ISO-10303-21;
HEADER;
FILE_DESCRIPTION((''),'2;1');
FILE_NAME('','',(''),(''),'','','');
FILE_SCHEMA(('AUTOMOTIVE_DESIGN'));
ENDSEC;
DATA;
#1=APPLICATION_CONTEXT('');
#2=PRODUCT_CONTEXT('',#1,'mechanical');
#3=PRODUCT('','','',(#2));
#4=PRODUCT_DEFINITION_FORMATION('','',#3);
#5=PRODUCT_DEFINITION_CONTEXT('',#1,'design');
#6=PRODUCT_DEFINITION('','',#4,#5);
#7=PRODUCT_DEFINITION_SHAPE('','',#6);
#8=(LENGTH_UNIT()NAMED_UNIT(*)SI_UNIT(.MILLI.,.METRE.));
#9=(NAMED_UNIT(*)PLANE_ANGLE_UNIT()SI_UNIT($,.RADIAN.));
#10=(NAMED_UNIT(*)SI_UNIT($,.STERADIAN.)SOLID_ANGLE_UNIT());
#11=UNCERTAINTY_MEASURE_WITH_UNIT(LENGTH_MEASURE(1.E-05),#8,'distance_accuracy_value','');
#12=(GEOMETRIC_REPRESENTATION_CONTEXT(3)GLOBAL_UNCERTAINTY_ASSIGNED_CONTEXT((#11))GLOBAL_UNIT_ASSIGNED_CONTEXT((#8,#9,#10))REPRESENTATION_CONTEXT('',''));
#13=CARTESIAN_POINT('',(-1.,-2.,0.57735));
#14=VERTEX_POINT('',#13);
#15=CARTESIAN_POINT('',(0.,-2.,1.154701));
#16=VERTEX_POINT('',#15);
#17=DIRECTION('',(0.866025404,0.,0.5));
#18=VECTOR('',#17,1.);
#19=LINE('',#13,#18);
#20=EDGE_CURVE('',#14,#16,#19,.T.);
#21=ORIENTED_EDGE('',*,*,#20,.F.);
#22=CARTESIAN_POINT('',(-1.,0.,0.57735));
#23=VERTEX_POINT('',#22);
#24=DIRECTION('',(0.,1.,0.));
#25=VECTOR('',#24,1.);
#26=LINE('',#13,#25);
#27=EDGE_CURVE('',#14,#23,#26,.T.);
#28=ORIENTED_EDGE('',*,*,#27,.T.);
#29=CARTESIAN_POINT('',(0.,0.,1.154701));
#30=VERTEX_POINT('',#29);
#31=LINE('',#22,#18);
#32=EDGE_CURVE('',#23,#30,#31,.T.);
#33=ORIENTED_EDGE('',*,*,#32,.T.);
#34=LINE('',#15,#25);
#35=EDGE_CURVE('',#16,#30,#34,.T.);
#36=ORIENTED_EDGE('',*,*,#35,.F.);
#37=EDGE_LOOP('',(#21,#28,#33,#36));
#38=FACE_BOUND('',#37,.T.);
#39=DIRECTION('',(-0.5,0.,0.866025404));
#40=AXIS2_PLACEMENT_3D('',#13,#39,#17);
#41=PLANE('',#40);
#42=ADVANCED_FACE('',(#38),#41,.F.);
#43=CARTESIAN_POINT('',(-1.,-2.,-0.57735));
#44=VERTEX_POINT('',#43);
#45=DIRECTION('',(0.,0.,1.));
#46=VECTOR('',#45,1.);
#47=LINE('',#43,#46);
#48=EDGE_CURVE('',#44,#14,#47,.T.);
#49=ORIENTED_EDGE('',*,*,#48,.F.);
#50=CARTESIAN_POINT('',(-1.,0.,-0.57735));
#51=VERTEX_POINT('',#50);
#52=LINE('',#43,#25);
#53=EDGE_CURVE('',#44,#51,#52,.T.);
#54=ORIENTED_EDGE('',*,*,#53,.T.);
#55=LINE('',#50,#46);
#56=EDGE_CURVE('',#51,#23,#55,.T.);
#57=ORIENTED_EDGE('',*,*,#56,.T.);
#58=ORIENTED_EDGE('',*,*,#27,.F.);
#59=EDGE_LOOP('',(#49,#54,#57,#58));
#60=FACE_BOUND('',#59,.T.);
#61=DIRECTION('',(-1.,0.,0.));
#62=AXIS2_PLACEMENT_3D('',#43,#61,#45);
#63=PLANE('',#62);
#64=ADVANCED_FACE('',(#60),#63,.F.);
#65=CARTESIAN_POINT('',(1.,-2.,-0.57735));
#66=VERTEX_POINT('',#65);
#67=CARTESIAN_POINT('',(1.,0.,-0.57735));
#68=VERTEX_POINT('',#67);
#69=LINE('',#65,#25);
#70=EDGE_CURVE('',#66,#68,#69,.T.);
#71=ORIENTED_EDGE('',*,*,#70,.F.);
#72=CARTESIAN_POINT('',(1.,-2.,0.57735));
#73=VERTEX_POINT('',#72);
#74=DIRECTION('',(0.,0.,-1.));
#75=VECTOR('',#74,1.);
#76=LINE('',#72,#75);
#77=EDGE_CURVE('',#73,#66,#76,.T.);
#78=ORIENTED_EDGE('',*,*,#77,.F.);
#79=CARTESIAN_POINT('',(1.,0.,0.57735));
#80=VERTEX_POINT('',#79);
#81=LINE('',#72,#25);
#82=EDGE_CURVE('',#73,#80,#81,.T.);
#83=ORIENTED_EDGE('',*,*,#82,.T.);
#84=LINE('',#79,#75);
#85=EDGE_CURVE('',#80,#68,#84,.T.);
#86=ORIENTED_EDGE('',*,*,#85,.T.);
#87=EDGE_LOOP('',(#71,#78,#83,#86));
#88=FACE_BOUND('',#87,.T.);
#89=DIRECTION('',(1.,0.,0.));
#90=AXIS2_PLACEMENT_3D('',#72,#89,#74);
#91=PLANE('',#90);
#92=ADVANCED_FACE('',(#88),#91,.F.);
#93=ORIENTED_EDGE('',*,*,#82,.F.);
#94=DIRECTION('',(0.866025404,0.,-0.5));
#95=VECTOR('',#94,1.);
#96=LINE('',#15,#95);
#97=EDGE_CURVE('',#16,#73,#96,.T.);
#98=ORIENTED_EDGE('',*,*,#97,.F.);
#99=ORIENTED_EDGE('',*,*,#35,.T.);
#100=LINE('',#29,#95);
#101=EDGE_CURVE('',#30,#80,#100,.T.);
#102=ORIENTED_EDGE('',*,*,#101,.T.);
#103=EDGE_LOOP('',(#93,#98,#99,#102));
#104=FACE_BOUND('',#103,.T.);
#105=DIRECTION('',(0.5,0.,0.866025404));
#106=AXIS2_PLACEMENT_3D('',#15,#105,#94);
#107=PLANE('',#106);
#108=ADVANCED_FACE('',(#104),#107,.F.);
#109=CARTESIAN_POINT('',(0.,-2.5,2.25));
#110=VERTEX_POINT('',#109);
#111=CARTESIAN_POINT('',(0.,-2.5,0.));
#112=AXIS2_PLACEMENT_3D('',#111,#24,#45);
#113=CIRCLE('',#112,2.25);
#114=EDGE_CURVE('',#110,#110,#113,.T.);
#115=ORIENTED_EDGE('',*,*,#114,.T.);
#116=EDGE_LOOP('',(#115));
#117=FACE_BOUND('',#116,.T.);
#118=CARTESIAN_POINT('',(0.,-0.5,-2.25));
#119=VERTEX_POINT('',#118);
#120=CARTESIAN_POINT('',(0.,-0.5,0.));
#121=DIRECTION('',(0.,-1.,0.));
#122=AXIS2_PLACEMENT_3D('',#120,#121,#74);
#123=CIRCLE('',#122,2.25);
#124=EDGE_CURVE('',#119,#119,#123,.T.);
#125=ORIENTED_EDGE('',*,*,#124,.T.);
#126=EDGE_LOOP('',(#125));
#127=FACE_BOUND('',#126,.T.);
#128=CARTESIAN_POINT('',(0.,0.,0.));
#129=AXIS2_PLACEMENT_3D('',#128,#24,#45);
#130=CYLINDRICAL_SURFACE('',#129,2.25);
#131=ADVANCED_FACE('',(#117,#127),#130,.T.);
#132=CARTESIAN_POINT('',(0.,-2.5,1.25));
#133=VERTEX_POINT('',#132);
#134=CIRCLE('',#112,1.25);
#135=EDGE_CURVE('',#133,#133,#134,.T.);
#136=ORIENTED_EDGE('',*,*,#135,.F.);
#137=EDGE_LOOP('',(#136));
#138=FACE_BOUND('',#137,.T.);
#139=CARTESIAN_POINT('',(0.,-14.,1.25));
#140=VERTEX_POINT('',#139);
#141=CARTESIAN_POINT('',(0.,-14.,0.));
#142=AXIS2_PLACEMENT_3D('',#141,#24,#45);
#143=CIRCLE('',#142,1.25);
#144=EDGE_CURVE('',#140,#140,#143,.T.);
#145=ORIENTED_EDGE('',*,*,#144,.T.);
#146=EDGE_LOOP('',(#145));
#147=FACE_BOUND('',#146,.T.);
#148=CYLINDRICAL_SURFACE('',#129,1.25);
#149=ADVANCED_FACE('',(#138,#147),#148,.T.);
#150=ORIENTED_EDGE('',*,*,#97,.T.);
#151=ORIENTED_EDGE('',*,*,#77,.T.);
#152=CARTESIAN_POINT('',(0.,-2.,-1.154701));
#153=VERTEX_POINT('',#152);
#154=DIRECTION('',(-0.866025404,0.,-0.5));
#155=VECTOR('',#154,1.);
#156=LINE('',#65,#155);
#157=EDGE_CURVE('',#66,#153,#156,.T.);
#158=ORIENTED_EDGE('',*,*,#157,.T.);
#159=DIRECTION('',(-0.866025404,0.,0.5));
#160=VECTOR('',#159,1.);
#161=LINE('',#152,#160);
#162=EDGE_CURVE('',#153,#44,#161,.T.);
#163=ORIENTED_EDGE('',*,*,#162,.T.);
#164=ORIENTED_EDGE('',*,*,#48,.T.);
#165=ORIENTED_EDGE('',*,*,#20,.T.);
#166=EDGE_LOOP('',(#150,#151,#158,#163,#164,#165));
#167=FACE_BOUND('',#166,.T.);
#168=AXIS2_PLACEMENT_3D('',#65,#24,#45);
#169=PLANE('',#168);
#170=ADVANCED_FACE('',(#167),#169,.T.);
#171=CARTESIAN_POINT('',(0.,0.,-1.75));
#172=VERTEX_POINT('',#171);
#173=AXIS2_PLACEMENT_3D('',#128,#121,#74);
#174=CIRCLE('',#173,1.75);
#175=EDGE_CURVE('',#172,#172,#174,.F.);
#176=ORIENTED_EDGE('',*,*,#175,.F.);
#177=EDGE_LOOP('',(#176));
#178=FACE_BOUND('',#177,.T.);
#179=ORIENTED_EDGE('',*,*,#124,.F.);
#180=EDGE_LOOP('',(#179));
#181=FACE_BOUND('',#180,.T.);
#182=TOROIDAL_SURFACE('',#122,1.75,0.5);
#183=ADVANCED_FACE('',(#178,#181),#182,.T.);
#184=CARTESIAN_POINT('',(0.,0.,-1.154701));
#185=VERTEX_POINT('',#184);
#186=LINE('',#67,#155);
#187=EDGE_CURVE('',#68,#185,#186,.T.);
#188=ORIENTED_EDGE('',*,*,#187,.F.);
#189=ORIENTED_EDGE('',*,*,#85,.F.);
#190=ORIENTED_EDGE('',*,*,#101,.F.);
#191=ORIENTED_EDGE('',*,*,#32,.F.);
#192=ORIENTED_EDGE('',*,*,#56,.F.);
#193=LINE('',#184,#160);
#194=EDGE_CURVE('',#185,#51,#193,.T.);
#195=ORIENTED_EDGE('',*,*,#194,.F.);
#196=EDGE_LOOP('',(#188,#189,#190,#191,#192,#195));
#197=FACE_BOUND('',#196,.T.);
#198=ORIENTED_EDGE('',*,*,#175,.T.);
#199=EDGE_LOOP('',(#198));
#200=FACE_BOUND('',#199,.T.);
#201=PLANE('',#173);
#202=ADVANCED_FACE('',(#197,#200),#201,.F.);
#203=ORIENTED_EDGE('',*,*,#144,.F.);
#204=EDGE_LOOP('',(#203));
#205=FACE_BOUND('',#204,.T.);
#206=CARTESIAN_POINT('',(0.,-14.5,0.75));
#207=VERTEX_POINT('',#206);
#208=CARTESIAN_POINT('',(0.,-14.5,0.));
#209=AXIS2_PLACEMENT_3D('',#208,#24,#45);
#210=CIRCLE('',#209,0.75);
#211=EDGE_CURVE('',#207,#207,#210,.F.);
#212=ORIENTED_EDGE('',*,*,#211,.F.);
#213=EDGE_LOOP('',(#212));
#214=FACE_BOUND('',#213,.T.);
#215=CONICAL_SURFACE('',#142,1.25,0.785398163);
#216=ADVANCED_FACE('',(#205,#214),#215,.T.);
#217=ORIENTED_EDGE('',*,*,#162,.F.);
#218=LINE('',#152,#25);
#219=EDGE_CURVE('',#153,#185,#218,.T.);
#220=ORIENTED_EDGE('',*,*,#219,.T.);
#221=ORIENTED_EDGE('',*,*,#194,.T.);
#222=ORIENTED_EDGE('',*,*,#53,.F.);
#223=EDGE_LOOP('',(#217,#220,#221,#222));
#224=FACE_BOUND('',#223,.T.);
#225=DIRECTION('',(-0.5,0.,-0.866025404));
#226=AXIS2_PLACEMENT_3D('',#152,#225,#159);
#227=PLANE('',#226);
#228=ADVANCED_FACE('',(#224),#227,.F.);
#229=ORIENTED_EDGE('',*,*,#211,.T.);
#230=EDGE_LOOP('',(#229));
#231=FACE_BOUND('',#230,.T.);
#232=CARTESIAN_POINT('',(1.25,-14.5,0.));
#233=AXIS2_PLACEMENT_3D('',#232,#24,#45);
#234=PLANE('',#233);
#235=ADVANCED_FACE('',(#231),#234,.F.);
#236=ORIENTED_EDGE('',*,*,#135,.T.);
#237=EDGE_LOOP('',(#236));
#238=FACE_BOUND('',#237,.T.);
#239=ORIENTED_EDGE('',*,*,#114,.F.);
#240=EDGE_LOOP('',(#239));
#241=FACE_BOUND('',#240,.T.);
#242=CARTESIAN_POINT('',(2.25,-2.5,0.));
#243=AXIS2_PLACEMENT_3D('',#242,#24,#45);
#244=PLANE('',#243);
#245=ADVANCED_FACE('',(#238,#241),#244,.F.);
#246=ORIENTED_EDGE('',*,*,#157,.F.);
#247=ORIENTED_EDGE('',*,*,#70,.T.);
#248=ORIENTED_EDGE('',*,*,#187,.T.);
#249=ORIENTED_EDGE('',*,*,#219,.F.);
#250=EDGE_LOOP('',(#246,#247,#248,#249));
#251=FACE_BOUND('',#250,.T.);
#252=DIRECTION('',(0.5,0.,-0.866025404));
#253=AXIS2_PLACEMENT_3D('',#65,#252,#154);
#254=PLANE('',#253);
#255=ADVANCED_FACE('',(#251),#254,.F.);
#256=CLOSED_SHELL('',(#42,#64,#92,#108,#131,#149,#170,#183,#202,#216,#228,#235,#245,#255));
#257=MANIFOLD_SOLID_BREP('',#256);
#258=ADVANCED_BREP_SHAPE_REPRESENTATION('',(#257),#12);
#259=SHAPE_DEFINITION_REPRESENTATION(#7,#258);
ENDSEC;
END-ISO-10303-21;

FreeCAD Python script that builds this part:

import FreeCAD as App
import Part
import Sketcher
from FreeCAD import Vector
Q = App.Units.Quantity


def edges_at(feature, points):
    """Names of the edges that pass closest to the given points."""
    edges = feature.Shape.Edges
    near = lambda p: min(range(len(edges)), key=lambda i: edges[i].distToShape(Part.Vertex(*p))[0])
    return sorted({f"Edge{near(p) + 1}" for p in points})


def add_polygon(sketch, points):
    """Adds a closed chain of lines whose ends are joined by coincident constraints."""
    first, n = sketch.GeometryCount, len(points)
    for a, b in zip(points, points[1:] + points[:1]):
        sketch.addGeometry(Part.LineSegment(App.Vector(*a, 0), App.Vector(*b, 0)), False)
    for i in range(n):
        sketch.addConstraint(Sketcher.Constraint("Coincident", first + i, 2, first + (i + 1) % n, 1))

doc = App.newDocument("Part")
params = doc.addObject("Spreadsheet::Sheet", "Params")
for row, (alias, value) in enumerate([
    ("sketch1_width", "1 mm"),
    ("sketch1_height", "12 mm"),
    ("sketch1_height2", "14.5 mm"),
    ("sketch1_width2", "2.25 mm"),
    ("revolution_angle", "360 deg"),
    ("pocket1_length", "2 mm"),
    ("chamfer_size", "0.5 mm"),
    ("fillet_radius", "0.5 mm"),
], start=1):
    params.set(f"A{row}", alias)
    params.set(f"B{row}", "=" + value)
    params.setAlias(f"B{row}", alias)

body = doc.addObject("PartDesign::Body", "Body")

# Sketch on XY plane
sketch1 = body.newObject("Sketcher::SketchObject", "Sketch")
sketch1.AttachmentSupport = (doc.getObject("XY_Plane"), [""])
sketch1.MapMode = "FlatFace"
add_polygon(sketch1, [(2.25, 0), (0, 0), (0, -14.5), (1.25, -14.5), (1.25, -2.5), (2.25, -2.5)])  # lines 0-5
sketch1.addConstraint([
    Sketcher.Constraint("Horizontal", 0),
    Sketcher.Constraint("Vertical", 1),
    Sketcher.Constraint("Horizontal", 2),
    Sketcher.Constraint("Vertical", 3),
    Sketcher.Constraint("Horizontal", 4),
    Sketcher.Constraint("Vertical", 5),
    Sketcher.Constraint("Coincident", 0, 2, -1, 1),
    Sketcher.Constraint("DistanceX", 4, 1, 4, 2, 1.0),
    Sketcher.Constraint("DistanceY", 3, 1, 3, 2, 12.0),
    Sketcher.Constraint("DistanceY", 1, 2, 1, 1, 14.5),
    Sketcher.Constraint("DistanceX", 0, 2, 0, 1, 2.25),
])
sketch1.setExpression("Constraints[13]", "Params.sketch1_width")
sketch1.setExpression("Constraints[14]", "Params.sketch1_height")
sketch1.setExpression("Constraints[15]", "Params.sketch1_height2")
sketch1.setExpression("Constraints[16]", "Params.sketch1_width2")
revolution = body.newObject("PartDesign::Revolution", "Revolution")
revolution.Profile = sketch1
revolution.ReferenceAxis = (sketch1, ["V_Axis"])
revolution.setExpression("Angle", "Params.revolution_angle")

# Sketch on XZ plane
sketch2 = body.newObject("Sketcher::SketchObject", "Sketch001")
sketch2.AttachmentSupport = (doc.getObject("XZ_Plane"), [""])
sketch2.MapMode = "FlatFace"
add_polygon(sketch2, [(1, -0.57735), (0, -1.154701), (-1, -0.57735), (-1, 0.57735), (0, 1.154701), (1, 0.57735)])  # lines 0-5
sketch2.addConstraint([
    Sketcher.Constraint("Vertical", 2),
    Sketcher.Constraint("Vertical", 5),
    Sketcher.Constraint("Symmetric", 0, 2, 3, 2, -1, 1),
    Sketcher.Constraint("Symmetric", 1, 2, 4, 2, -1, 1),
    Sketcher.Constraint("PointOnObject", 0, 2, -2),
    Sketcher.Constraint("Parallel", 0, 3),
    Sketcher.Constraint("Horizontal", 2, 2, 4, 2),
    Sketcher.Constraint("Angle", 0, Q("-150 deg")),
    Sketcher.Constraint("DistanceX", 1, 2, -1, 1, 1.0),
    Sketcher.Constraint("DistanceY", 2, 1, 2, 2, 1.154701),
])
pocket1 = body.newObject("PartDesign::Pocket", "Pocket")
pocket1.Profile = sketch2
pocket1.setExpression("Length", "Params.pocket1_length")
pocket1.Reversed = True
doc.recompute()

chamfer = body.newObject("PartDesign::Chamfer", "Chamfer")
chamfer.Base = (pocket1, edges_at(pocket1, [(0, -14.5, -1.25)]))
chamfer.setExpression("Size", "Params.chamfer_size")
doc.recompute()

fillet = body.newObject("PartDesign::Fillet", "Fillet")
fillet.Base = (chamfer, edges_at(chamfer, [(0, 0, -2.25)]))
fillet.setExpression("Radius", "Params.fillet_radius")

doc.recompute()
